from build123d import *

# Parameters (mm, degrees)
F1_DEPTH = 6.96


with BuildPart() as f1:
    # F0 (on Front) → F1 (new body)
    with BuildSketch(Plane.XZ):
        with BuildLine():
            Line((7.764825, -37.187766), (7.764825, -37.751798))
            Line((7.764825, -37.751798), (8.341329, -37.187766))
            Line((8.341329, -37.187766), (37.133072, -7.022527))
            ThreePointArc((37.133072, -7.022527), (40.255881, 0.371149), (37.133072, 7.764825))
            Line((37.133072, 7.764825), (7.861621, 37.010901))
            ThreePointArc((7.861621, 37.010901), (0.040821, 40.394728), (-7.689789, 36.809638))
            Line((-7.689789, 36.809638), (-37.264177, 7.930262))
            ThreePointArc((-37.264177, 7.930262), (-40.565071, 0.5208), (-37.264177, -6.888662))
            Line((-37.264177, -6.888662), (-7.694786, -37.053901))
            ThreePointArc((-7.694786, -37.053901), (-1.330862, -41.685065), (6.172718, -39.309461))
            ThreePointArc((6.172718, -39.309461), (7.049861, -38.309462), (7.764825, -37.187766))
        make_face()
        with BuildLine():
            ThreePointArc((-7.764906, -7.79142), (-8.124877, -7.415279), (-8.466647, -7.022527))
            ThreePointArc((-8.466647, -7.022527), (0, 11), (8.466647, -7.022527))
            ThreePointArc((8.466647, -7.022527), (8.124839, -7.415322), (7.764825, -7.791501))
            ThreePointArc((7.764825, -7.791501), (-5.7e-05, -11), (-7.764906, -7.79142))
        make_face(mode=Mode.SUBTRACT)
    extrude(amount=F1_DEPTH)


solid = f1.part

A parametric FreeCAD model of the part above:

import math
import FreeCAD as App
import Part
import Sketcher

doc = App.newDocument("Part")
body = doc.addObject("PartDesign::Body", "Body")

sketch1 = body.newObject("Sketcher::SketchObject", "Sketch")
sketch1.AttachmentSupport = (doc.getObject("XZ_Plane"), [""])
sketch1.MapMode = "FlatFace"
sketch1.addGeometry([
    Part.LineSegment(App.Vector(7.764825, -37.187766, 0), App.Vector(7.764825, -37.751798, 0)),
    Part.LineSegment(App.Vector(7.764825, -37.751798, 0), App.Vector(8.341329, -37.187766, 0)),
    Part.LineSegment(App.Vector(8.341329, -37.187766, 0), App.Vector(37.133072, -7.022527, 0)),
    Part.ArcOfCircle(Part.Circle(App.Vector(29.941709, 0.371149, 0), App.Vector(0, 0, 1), 10.314172), math.radians(-45.794713), math.radians(45.794713)),
    Part.LineSegment(App.Vector(37.133072, 7.764825, 0), App.Vector(7.861621, 37.010901, 0)),
    Part.ArcOfCircle(Part.Circle(App.Vector(0.17565, 29.976604, 0), App.Vector(0, 0, 1), 10.418996), math.radians(42.46514), math.radians(139.017797)),
    Part.LineSegment(App.Vector(-7.689789, 36.809638, 0), App.Vector(-37.264177, 7.930262, 0)),
    Part.ArcOfCircle(Part.Circle(App.Vector(-30.598676, 0.5208, 0), App.Vector(0, 0, 1), 9.966395), math.radians(131.974331), math.radians(228.025669)),
    Part.LineSegment(App.Vector(-37.264177, -6.888662, 0), App.Vector(-7.694786, -37.053901, 0)),
    Part.ArcOfCircle(Part.Circle(App.Vector(0.07008, -33.071876, 0), App.Vector(0, 0, 1), 8.726377), math.radians(-152.85007), math.radians(-45.626533)),
    Part.ArcOfCircle(Part.Circle(App.Vector(0.070063, -33.071864, 0), App.Vector(0, 0, 1), 8.726398), math.radians(-45.626507), math.radians(-28.142171)),
    Part.ArcOfCircle(Part.Circle(App.Vector(0, -0.000001, 0), App.Vector(0, 0, 1), 10.999999), math.radians(-134.90235), math.radians(-45.098247)),
    Part.ArcOfCircle(Part.Circle(App.Vector(0.000146, 0.000137, 0), App.Vector(0, 0, 1), 11.0002), math.radians(-140.326461), math.radians(-134.90238)),
    Part.ArcOfCircle(Part.Circle(App.Vector(0, 0, 0), App.Vector(0, 0, 1), 11), math.radians(-39.673475), math.radians(219.673475)),
    Part.ArcOfCircle(Part.Circle(App.Vector(0.000394, -0.000359, 0), App.Vector(0, 0, 1), 10.999467), math.radians(-45.098387), math.radians(-39.673348)),
], False)
sketch1.addConstraint([
    Sketcher.Constraint("Coincident", 0, 2, 1, 1),
    Sketcher.Constraint("Coincident", 1, 2, 2, 1),
    Sketcher.Constraint("Coincident", 2, 2, 3, 1),
    Sketcher.Constraint("Coincident", 3, 2, 4, 1),
    Sketcher.Constraint("Coincident", 4, 2, 5, 1),
    Sketcher.Constraint("Coincident", 5, 2, 6, 1),
    Sketcher.Constraint("Coincident", 6, 2, 7, 1),
    Sketcher.Constraint("Coincident", 7, 2, 8, 1),
    Sketcher.Constraint("Coincident", 8, 2, 9, 1),
    Sketcher.Constraint("Coincident", 9, 2, 10, 1),
    Sketcher.Constraint("Coincident", 10, 2, 0, 1),
    Sketcher.Constraint("Coincident", 11, 1, 12, 2),
    Sketcher.Constraint("Coincident", 12, 1, 13, 2),
    Sketcher.Constraint("Coincident", 13, 1, 14, 2),
    Sketcher.Constraint("Coincident", 14, 1, 11, 2),
    Sketcher.Constraint("Vertical", 0),
    Sketcher.Constraint("Coincident", 11, 3, -1, 1),
    Sketcher.Constraint("Coincident", 13, 3, -1, 1),
    Sketcher.Constraint("Radius", 11, 10.999999),
    Sketcher.Constraint("Radius", 13, 11.0),
    Sketcher.Constraint("Radius", 12, 11.0002),
    Sketcher.Constraint("Radius", 3, 10.314172),
    Sketcher.Constraint("Radius", 5, 10.418996),
    Sketcher.Constraint("Radius", 7, 9.966395),
    Sketcher.Constraint("Radius", 9, 8.726377),
    Sketcher.Constraint("Radius", 10, 8.726398),
    Sketcher.Constraint("Radius", 14, 10.999467),
    Sketcher.Constraint("DistanceY", 10, 3, 12, 3, 33.072002),
    Sketcher.Constraint("DistanceY", 0, 2, 0, 1, 0.564032),
    Sketcher.Constraint("DistanceY", -1, 1, 7, 3, 0.5208),
    Sketcher.Constraint("DistanceY", -1, 1, 4, 2, 37.010901),
    Sketcher.Constraint("DistanceY", 8, 2, -1, 1, 37.053901),
    Sketcher.Constraint("DistanceY", 14, 1, -1, 1, 7.791501),
    Sketcher.Constraint("DistanceY", 0, 2, 13, 3, 37.751798),
    Sketcher.Constraint("DistanceY", 1, 2, 10, 3, 4.115902),
    Sketcher.Constraint("DistanceY", 12, 3, 5, 2, 36.809501),
    Sketcher.Constraint("DistanceX", 6, 2, 7, 3, 6.665501),
    Sketcher.Constraint("DistanceX", 7, 2, 7, 3, 6.665501),
    Sketcher.Constraint("DistanceX", 11, 1, 14, 3, 7.7653),
    Sketcher.Constraint("DistanceX", 12, 3, 13, 1, 8.466501),
    Sketcher.Constraint("Distance", 1, 0.806529),
    Sketcher.Constraint("DistanceX", -1, 1, 3, 3, 29.941709),
    Sketcher.Constraint("DistanceY", -1, 1, 3, 3, 0.371149),
    Sketcher.Constraint("DistanceX", -1, 1, 5, 3, 0.17565),
    Sketcher.Constraint("DistanceX", -1, 1, 9, 3, 0.07008),
    Sketcher.Constraint("DistanceX", -1, 1, 1, 2, 8.341329),
    Sketcher.Constraint("DistanceX", -1, 1, 4, 2, 7.861621),
    Sketcher.Constraint("DistanceY", 9, 2, -1, 1, 39.309461),
    Sketcher.Constraint("DistanceX", 7, 3, 10, 3, 30.668738),
    Sketcher.Constraint("DistanceY", 2, 2, 14, 3, 7.022168),
    Sketcher.Constraint("DistanceX", 12, 1, 11, 1, 0.701741),
    Sketcher.Constraint("Distance", 4, 41.378144),
])
pad1 = body.newObject("PartDesign::Pad", "Pad")
pad1.Profile = sketch1
pad1.Length = 6.96

doc.recompute()
